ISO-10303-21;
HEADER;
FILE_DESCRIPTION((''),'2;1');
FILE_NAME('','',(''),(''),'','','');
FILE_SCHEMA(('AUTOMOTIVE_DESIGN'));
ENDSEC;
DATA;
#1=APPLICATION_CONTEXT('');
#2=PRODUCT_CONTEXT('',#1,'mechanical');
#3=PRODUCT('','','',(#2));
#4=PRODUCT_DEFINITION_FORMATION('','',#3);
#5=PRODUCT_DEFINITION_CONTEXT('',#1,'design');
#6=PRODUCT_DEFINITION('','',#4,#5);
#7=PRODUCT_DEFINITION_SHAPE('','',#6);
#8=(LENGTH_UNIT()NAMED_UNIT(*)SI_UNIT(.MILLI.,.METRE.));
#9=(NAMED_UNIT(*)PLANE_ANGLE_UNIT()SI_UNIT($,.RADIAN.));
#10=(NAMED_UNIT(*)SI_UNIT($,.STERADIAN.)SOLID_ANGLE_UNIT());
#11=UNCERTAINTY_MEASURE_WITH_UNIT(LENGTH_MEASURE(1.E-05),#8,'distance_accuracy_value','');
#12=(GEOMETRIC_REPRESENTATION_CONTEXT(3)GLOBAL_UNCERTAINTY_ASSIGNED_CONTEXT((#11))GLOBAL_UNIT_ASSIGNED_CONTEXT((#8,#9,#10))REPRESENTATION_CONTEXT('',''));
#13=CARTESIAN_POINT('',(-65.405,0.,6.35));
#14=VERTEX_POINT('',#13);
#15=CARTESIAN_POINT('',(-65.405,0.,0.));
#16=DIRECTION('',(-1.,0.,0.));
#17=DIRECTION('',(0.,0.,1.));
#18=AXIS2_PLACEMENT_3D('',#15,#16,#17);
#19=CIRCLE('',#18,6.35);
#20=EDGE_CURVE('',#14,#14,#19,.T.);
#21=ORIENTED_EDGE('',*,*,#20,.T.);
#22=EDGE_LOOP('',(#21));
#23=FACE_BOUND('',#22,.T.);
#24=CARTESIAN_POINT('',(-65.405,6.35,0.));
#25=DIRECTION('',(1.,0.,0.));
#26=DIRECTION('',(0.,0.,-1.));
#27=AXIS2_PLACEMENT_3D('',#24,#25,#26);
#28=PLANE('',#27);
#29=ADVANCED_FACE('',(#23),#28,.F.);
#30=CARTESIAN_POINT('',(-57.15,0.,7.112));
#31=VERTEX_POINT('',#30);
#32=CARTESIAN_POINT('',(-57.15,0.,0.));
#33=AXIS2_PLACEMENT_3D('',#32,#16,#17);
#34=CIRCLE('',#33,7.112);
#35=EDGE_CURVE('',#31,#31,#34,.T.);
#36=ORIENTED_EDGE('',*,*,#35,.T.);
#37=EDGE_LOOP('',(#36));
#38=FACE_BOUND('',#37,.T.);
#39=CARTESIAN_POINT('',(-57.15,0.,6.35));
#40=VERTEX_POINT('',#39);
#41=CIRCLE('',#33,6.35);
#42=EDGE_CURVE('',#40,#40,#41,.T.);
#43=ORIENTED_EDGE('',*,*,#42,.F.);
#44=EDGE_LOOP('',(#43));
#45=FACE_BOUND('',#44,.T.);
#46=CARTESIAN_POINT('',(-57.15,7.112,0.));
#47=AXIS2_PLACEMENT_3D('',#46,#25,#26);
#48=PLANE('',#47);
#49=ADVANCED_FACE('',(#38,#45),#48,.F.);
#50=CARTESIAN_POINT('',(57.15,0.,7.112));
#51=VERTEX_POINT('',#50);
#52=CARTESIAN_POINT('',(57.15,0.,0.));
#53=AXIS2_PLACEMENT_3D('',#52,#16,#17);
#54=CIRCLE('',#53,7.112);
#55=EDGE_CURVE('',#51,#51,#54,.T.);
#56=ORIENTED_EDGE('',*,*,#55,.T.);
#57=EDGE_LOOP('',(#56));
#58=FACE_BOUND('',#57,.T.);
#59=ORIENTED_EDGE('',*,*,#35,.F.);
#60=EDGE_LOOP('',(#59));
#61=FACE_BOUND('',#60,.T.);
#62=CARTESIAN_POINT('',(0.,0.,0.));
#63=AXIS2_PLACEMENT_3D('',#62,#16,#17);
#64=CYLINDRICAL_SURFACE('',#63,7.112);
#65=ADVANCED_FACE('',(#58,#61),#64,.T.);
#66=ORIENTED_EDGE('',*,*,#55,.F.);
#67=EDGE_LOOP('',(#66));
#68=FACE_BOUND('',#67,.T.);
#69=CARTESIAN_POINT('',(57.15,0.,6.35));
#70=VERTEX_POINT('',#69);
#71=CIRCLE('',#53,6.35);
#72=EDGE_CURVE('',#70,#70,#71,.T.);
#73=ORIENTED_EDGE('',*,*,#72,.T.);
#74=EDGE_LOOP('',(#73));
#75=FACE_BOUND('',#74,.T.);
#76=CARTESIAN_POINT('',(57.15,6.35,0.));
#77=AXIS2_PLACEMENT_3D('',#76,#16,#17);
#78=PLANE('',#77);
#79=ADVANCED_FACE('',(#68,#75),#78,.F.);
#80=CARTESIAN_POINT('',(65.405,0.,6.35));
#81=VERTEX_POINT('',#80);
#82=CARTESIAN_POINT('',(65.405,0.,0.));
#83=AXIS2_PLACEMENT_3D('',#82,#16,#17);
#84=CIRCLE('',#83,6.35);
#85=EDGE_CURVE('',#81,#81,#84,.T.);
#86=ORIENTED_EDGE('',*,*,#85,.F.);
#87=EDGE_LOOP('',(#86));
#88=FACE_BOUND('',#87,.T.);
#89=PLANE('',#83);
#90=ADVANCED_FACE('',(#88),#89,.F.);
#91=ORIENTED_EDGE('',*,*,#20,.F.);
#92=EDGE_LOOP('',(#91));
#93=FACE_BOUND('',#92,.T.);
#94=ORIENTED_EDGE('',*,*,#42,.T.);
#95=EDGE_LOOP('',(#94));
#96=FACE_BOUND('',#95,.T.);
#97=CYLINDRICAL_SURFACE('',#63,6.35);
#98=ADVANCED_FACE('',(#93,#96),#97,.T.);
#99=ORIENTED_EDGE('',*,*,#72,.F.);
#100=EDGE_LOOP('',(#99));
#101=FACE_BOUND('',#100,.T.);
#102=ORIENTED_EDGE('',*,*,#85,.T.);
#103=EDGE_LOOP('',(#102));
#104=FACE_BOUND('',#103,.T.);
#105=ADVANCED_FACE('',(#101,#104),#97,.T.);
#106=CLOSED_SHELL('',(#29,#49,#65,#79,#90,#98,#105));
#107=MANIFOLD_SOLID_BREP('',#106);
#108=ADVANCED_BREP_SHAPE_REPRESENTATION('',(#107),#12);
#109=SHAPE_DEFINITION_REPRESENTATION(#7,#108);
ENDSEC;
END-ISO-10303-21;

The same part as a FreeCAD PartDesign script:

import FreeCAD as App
import Part
import Sketcher
from FreeCAD import Vector
Q = App.Units.Quantity


def add_polygon(sketch, points):
    """Adds a closed chain of lines whose ends are joined by coincident constraints."""
    first, n = sketch.GeometryCount, len(points)
    for a, b in zip(points, points[1:] + points[:1]):
        sketch.addGeometry(Part.LineSegment(App.Vector(*a, 0), App.Vector(*b, 0)), False)
    for i in range(n):
        sketch.addConstraint(Sketcher.Constraint("Coincident", first + i, 2, first + (i + 1) % n, 1))

doc = App.newDocument("Part")
body = doc.addObject("PartDesign::Body", "Body")

# Sketch on XY plane
sketch1 = body.newObject("Sketcher::SketchObject", "Sketch")
sketch1.AttachmentSupport = (doc.getObject("XY_Plane"), [""])
sketch1.MapMode = "FlatFace"
add_polygon(sketch1, [(-65.4, 0), (65.4, 0), (65.4, 6.3), (57.1, 6.3), (57.1, 7.1), (-57.1, 7.1), (-57.1, 6.3), (-65.4, 6.3)])  # lines 0-7
sketch1.addConstraint(Sketcher.Constraint("Horizontal", 0))
sketch1.addConstraint(Sketcher.Constraint("Vertical", 1))
sketch1.addConstraint(Sketcher.Constraint("Horizontal", 2))
sketch1.addConstraint(Sketcher.Constraint("Vertical", 3))
sketch1.addConstraint(Sketcher.Constraint("Horizontal", 4))
sketch1.addConstraint(Sketcher.Constraint("Vertical", 5))
sketch1.addConstraint(Sketcher.Constraint("Horizontal", 6))
sketch1.addConstraint(Sketcher.Constraint("Vertical", 7))
sketch1.addConstraint(Sketcher.Constraint("Symmetric", 0, 2, 7, 2, -1, 1))
sketch1.addConstraint(Sketcher.Constraint("Symmetric", 2, 2, 5, 2, -2))
sketch1.addConstraint(Sketcher.Constraint("DistanceX", 4, 2, 4, 1, Q("4.5 in")))
sketch1.addConstraint(Sketcher.Constraint("DistanceX", 0, 1, 0, 2, Q("5.15 in")))
sketch1.addConstraint(Sketcher.Constraint("DistanceY", 1, 1, 1, 2, Q("0.25 in")))
sketch1.addConstraint(Sketcher.Constraint("DistanceY", 3, 1, 3, 2, Q("0.03 in")))
revolution = body.newObject("PartDesign::Revolution", "Revolution")
revolution.Profile = sketch1
revolution.ReferenceAxis = (sketch1, ["H_Axis"])
revolution.Angle = 360

doc.recompute()
